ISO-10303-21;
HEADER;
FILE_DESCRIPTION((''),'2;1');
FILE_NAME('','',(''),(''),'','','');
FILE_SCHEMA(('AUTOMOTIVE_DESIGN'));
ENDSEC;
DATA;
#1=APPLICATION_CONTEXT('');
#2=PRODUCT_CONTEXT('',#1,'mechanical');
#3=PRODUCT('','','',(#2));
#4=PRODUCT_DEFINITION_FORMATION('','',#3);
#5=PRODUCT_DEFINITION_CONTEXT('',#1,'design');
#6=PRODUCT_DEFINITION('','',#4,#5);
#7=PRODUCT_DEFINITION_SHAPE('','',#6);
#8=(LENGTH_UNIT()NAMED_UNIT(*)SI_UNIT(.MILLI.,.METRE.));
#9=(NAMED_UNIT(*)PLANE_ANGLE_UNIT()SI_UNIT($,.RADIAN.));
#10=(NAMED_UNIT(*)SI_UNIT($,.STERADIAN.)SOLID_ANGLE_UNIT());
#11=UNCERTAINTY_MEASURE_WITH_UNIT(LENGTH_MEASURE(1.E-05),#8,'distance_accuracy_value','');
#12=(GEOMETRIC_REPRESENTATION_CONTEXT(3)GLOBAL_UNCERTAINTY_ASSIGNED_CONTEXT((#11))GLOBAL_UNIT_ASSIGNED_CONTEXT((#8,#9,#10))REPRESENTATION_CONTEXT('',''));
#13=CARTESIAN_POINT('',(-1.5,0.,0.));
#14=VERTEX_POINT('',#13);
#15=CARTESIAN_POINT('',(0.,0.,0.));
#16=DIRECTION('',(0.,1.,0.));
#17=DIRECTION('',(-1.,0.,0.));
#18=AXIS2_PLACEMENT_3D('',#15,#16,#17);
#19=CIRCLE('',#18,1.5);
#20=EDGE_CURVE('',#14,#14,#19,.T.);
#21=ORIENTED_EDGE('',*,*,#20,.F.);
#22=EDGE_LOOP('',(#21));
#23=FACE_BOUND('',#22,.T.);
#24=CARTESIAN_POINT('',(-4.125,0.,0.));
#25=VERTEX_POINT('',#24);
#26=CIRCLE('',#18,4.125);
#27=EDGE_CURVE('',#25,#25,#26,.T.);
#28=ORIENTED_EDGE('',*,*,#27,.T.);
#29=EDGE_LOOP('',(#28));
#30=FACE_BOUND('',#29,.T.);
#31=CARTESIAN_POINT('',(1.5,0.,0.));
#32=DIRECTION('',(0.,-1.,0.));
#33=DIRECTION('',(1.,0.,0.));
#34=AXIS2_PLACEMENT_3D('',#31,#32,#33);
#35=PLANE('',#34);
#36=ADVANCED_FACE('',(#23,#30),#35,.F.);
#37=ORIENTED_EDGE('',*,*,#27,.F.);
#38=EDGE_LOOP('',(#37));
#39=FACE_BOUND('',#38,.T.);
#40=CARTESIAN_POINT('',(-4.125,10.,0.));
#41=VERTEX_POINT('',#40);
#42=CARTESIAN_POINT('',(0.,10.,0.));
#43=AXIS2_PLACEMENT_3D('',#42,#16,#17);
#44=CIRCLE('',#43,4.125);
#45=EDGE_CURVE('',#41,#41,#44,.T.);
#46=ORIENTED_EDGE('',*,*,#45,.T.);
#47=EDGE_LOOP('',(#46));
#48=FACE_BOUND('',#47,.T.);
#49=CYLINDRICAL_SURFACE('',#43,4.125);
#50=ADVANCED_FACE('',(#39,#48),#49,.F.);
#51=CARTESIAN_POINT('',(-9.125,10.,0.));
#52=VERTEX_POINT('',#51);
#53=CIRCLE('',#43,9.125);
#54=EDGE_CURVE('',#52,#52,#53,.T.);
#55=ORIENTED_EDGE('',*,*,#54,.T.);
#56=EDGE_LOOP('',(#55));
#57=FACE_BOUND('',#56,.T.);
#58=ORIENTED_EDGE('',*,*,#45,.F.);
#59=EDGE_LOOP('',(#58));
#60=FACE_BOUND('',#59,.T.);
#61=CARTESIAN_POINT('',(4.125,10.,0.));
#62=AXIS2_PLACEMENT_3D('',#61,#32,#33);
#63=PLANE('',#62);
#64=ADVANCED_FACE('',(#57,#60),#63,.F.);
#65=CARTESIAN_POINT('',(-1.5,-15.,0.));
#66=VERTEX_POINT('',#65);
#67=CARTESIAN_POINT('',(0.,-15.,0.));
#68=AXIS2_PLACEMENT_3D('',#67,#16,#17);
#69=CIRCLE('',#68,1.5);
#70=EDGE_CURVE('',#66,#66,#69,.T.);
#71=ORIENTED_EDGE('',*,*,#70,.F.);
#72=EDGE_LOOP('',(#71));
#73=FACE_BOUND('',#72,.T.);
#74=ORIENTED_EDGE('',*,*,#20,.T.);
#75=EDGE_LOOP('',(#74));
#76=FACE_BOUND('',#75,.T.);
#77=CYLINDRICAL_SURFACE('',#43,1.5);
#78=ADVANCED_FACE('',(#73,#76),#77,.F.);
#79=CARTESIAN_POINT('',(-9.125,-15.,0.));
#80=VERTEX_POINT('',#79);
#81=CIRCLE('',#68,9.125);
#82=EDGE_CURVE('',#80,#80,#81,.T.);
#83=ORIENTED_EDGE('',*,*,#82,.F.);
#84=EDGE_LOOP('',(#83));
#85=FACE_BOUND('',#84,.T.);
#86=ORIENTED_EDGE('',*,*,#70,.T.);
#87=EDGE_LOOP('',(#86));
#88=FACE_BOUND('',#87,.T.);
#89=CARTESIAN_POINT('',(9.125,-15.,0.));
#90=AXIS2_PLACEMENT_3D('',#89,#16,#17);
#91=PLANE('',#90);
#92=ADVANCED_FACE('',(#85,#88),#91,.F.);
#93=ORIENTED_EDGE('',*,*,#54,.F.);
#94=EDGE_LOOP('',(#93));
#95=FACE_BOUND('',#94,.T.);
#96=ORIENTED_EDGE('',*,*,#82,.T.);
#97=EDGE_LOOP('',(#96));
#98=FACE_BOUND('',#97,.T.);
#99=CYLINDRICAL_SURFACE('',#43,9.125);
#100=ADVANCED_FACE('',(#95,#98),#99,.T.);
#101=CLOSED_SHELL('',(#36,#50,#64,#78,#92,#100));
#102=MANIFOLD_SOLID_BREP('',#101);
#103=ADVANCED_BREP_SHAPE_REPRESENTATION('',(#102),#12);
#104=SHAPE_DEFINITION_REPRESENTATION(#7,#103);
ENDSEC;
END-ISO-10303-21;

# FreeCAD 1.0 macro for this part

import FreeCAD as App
import Part
import Sketcher
from FreeCAD import Vector
Q = App.Units.Quantity


def add_polygon(sketch, points):
    """Adds a closed chain of lines whose ends are joined by coincident constraints."""
    first, n = sketch.GeometryCount, len(points)
    for a, b in zip(points, points[1:] + points[:1]):
        sketch.addGeometry(Part.LineSegment(App.Vector(*a, 0), App.Vector(*b, 0)), False)
    for i in range(n):
        sketch.addConstraint(Sketcher.Constraint("Coincident", first + i, 2, first + (i + 1) % n, 1))

doc = App.newDocument("Part")
body = doc.addObject("PartDesign::Body", "Body")

sketch1 = doc.addObject("Sketcher::SketchObject", "Sketch")
body.addObject(sketch1)
sketch1.AttachmentSupport = (doc.XY_Plane, [""])
sketch1.MapMode = "FlatFace"
add_polygon(sketch1, [(9.125, 10), (4.125, 10), (4.125, 0), (1.5, 0), (1.5, -15), (9.125, -15)])
sketch1.addConstraint([
    Sketcher.Constraint("Horizontal", 0),
    Sketcher.Constraint("Vertical", 1),
    Sketcher.Constraint("Horizontal", 2),
    Sketcher.Constraint("Vertical", 3),
    Sketcher.Constraint("Horizontal", 4),
    Sketcher.Constraint("Vertical", 5),
    Sketcher.Constraint("PointOnObject", 1, 2, -1),
    Sketcher.Constraint("DistanceX", 0, 2, 0, 1, Q("5 mm")),
    Sketcher.Constraint("DistanceY", 1, 2, 1, 1, Q("10 mm")),
    Sketcher.Constraint("DistanceY", 3, 2, 3, 1, Q("15 mm")),
    Sketcher.Constraint("DistanceX", -1, 1, 2, 2, Q("1.5 mm")),
    Sketcher.Constraint("DistanceX", 2, 2, 2, 1, Q("2.625 mm")),
])
revolution = doc.addObject("PartDesign::Revolution", "Revolution")
body.addObject(revolution)
revolution.Profile = sketch1
revolution.ReferenceAxis = (sketch1, ["V_Axis"])
revolution.Angle = 360

doc.recompute()
